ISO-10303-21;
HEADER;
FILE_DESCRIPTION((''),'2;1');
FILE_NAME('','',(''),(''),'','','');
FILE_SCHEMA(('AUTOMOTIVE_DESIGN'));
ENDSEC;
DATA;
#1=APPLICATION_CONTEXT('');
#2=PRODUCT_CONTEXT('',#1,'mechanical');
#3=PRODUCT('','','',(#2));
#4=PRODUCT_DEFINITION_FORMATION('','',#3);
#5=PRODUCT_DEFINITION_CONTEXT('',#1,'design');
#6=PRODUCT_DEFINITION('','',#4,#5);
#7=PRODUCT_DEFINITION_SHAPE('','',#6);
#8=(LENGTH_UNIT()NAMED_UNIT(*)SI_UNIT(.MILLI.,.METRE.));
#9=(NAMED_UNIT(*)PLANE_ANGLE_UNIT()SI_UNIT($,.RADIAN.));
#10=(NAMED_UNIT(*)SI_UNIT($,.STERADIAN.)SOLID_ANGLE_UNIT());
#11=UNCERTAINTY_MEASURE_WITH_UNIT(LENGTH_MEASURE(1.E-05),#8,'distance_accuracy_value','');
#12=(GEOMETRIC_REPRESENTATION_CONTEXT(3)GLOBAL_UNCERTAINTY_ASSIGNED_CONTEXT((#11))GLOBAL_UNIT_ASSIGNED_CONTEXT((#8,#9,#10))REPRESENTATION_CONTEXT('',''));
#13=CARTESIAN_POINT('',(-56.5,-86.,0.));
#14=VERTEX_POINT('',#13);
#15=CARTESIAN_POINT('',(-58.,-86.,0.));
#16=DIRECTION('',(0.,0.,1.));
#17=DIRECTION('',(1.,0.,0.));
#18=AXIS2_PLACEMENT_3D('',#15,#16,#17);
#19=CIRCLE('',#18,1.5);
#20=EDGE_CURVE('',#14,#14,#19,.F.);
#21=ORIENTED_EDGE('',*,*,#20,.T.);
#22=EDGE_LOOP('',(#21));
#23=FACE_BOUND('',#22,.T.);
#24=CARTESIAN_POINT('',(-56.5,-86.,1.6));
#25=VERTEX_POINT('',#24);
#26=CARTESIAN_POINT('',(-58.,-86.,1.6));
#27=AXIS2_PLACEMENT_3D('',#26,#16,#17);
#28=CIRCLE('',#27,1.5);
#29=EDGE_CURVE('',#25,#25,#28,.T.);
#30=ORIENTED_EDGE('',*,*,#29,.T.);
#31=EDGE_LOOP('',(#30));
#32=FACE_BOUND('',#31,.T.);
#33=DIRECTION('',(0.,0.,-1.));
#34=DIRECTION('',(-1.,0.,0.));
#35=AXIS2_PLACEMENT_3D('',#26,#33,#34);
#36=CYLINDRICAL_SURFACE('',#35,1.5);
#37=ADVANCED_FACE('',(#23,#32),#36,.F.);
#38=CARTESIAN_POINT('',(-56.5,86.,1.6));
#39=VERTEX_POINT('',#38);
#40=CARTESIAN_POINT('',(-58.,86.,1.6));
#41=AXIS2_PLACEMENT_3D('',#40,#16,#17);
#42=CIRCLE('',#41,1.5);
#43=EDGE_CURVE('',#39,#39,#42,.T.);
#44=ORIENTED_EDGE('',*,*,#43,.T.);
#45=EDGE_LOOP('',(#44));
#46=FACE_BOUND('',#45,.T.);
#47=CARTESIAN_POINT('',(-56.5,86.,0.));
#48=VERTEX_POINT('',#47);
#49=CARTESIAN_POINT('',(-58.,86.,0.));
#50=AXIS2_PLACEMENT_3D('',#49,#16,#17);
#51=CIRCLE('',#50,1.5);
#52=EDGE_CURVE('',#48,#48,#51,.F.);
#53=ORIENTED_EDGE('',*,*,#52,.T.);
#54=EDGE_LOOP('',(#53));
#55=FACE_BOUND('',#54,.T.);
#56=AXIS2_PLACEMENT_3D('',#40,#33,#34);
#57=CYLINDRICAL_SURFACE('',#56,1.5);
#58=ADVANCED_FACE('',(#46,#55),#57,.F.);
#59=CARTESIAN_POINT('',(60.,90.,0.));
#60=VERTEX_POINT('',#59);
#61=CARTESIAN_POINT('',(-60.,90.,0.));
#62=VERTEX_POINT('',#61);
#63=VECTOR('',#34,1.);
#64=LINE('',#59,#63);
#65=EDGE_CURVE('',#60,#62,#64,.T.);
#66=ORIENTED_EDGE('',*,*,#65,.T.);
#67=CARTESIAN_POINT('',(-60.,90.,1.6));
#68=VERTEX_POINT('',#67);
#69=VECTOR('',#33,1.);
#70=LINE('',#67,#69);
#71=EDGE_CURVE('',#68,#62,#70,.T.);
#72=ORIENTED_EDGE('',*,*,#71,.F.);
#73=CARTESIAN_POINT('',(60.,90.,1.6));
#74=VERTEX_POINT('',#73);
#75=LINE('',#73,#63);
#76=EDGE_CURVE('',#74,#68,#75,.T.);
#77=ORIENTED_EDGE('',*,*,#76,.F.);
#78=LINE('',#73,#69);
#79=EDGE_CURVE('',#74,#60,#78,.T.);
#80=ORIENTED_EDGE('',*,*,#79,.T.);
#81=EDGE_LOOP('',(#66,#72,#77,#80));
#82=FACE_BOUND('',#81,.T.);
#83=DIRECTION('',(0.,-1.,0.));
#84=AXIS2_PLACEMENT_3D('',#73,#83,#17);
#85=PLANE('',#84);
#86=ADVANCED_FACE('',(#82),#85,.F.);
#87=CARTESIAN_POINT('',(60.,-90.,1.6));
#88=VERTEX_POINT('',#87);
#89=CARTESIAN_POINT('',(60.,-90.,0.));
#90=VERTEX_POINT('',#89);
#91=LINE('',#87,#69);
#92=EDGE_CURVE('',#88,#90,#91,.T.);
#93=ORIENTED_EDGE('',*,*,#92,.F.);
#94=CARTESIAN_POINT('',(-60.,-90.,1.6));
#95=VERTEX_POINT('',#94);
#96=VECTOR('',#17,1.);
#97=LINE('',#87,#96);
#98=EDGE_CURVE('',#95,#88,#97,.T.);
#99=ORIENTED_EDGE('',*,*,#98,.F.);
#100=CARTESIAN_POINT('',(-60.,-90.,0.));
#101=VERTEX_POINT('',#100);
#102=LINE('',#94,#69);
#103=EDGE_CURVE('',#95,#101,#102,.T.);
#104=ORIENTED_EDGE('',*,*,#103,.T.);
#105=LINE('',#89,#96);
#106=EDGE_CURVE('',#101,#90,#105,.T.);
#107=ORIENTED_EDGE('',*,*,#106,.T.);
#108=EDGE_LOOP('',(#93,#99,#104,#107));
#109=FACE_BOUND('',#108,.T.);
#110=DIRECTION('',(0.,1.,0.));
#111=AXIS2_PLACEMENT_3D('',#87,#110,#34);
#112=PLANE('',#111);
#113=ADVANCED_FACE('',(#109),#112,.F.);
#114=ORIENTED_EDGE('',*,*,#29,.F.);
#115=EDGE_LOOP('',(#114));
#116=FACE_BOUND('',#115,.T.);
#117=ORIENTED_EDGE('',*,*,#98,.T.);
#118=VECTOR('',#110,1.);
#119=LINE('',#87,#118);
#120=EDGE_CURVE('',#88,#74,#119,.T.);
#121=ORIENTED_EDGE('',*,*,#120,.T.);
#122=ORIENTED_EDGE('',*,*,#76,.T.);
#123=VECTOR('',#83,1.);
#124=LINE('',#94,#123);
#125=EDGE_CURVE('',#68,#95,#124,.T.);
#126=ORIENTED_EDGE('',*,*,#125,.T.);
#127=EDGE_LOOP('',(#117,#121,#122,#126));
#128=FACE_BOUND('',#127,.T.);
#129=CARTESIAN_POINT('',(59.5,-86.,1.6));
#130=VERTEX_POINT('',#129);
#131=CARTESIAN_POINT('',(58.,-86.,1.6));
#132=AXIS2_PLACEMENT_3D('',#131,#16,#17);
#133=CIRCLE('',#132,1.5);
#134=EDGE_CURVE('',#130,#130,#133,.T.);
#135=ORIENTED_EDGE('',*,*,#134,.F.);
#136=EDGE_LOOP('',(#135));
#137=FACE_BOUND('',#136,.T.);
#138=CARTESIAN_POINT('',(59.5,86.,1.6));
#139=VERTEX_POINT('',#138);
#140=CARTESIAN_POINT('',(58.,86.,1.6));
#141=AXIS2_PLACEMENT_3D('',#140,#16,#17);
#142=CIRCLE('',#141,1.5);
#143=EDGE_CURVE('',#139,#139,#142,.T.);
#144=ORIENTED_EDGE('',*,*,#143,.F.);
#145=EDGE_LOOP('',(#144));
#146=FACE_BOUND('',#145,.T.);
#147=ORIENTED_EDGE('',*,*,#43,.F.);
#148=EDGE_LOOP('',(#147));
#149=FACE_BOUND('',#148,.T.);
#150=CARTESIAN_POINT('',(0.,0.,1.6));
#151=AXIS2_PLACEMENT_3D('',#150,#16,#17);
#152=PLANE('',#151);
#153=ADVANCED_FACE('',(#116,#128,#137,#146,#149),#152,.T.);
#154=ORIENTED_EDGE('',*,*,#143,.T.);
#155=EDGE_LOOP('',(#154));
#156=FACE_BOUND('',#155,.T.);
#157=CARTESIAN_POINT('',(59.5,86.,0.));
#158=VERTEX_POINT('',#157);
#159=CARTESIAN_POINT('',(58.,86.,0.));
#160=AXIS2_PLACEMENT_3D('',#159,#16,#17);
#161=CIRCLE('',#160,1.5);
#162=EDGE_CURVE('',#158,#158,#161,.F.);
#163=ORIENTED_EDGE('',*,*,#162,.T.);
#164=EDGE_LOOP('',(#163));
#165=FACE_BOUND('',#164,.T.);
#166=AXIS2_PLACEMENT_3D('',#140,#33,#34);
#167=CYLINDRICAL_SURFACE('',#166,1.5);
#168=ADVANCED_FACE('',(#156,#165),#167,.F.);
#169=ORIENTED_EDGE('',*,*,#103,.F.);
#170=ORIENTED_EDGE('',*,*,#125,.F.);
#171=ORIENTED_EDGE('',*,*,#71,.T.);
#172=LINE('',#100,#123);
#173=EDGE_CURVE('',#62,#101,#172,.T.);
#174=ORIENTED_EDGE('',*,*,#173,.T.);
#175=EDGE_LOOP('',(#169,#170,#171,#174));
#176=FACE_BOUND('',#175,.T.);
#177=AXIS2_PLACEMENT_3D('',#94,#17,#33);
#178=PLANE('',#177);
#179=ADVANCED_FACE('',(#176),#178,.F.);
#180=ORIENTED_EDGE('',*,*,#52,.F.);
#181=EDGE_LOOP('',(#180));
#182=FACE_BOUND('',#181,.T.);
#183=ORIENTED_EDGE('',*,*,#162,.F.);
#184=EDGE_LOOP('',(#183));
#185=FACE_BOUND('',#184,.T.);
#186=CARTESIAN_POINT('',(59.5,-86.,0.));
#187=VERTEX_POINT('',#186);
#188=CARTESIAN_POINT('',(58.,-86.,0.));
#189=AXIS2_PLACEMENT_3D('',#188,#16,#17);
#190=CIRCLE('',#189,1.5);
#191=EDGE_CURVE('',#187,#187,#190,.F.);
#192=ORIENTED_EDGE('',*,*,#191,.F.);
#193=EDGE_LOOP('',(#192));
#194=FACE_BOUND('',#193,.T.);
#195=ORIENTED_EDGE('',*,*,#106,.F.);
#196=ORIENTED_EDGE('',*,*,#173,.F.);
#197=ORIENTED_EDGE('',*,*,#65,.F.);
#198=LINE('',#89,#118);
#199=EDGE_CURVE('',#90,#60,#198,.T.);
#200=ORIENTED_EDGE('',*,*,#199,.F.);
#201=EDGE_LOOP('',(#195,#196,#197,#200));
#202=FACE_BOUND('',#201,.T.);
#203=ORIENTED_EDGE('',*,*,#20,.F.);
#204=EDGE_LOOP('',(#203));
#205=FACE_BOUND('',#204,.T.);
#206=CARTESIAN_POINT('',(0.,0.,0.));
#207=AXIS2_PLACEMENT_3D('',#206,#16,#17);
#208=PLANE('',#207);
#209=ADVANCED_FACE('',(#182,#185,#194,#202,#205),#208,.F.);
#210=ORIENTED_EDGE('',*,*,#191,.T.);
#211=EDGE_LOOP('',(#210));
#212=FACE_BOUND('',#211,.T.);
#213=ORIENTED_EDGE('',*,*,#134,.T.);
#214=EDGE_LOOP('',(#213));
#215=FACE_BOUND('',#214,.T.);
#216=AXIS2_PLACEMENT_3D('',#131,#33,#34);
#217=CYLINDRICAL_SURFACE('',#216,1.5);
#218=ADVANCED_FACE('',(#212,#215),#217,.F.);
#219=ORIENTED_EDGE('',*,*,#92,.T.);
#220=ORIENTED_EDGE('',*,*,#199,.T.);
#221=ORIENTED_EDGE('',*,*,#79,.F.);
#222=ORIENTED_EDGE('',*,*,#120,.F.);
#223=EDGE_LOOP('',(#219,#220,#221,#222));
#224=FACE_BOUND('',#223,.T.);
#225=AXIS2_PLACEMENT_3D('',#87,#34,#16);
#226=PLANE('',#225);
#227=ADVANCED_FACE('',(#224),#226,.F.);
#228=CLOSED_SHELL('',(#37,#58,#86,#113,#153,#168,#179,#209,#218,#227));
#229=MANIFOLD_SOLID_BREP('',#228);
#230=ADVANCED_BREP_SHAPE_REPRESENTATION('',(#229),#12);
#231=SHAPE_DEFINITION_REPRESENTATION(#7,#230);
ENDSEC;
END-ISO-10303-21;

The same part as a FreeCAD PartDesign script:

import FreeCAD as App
import Part
import Sketcher
from FreeCAD import Vector
Q = App.Units.Quantity

doc = App.newDocument("Part")
params = doc.addObject("Spreadsheet::Sheet", "Params")
for row, (alias, value) in enumerate([
    ("sketch1_width", "120 mm"),
    ("sketch1_height", "180 mm"),
    ("pad1_length", "1.6 mm"),
    ("sketch2_diameter", "3 mm"),
], start=1):
    params.set(f"A{row}", alias)
    params.set(f"B{row}", "=" + value)
    params.setAlias(f"B{row}", alias)

body = doc.addObject("PartDesign::Body", "Body")

# Sketch on XY plane
sketch1 = body.newObject("Sketcher::SketchObject", "Sketch")
sketch1.AttachmentSupport = (doc.getObject("XY_Plane"), [""])
sketch1.MapMode = "FlatFace"
sketch1.addGeometry([
    Part.LineSegment(Vector(-60, 90, 0), Vector(-60, -90, 0)),
    Part.LineSegment(Vector(-60, -90, 0), Vector(60, -90, 0)),
    Part.LineSegment(Vector(60, -90, 0), Vector(60, 90, 0)),
    Part.LineSegment(Vector(60, 90, 0), Vector(-60, 90, 0)),
], False)
sketch1.addConstraint([
    Sketcher.Constraint("Coincident", 0, 2, 1, 1),
    Sketcher.Constraint("Coincident", 1, 2, 2, 1),
    Sketcher.Constraint("Coincident", 2, 2, 3, 1),
    Sketcher.Constraint("Coincident", 3, 2, 0, 1),
    Sketcher.Constraint("Vertical", 0),
    Sketcher.Constraint("Horizontal", 1),
    Sketcher.Constraint("Vertical", 2),
    Sketcher.Constraint("Horizontal", 3),
    Sketcher.Constraint("Symmetric", 0, 2, 2, 2, -1, 1),
    Sketcher.Constraint("DistanceX", 1, 1, 1, 2, Q("120 mm")),
    Sketcher.Constraint("DistanceY", 0, 2, 0, 1, Q("180 mm")),
])
sketch1.setExpression("Constraints[9]", "Params.sketch1_width")
sketch1.setExpression("Constraints[10]", "Params.sketch1_height")
pad1 = body.newObject("PartDesign::Pad", "Pad")
pad1.Profile = sketch1
pad1.setExpression("Length", "Params.pad1_length")

# Sketch on XY plane
sketch2 = body.newObject("Sketcher::SketchObject", "Sketch001")
sketch2.AttachmentSupport = (doc.getObject("XY_Plane"), [""])
sketch2.MapMode = "FlatFace"
sketch2.addGeometry([
    Part.Circle(Vector(-58, 86, 0), Vector(0, 0, 1), 1.5),
    Part.Circle(Vector(58, 86, 0), Vector(0, 0, 1), 1.5),
    Part.Circle(Vector(58, -86, 0), Vector(0, 0, 1), 1.5),
    Part.Circle(Vector(-58, -86, 0), Vector(0, 0, 1), 1.5),
], False)
sketch2.addConstraint([
    Sketcher.Constraint("Equal", 0, 1),
    Sketcher.Constraint("Equal", 1, 2),
    Sketcher.Constraint("Equal", 2, 3),
    Sketcher.Constraint("Symmetric", 0, 3, 2, 3, -1, 1),
    Sketcher.Constraint("Symmetric", 1, 3, 3, 3, -1, 1),
    Sketcher.Constraint("Symmetric", 0, 3, 1, 3, -2),
    Sketcher.Constraint("Diameter", 0, Q("3 mm")),
    Sketcher.Constraint("DistanceX", 0, 3, -1, 1, Q("58 mm")),
    Sketcher.Constraint("DistanceY", -1, 1, 0, 3, Q("86 mm")),
])
sketch2.setExpression("Constraints[6]", "Params.sketch2_diameter")
pocket1 = body.newObject("PartDesign::Pocket", "Pocket")
pocket1.Profile = sketch2
pocket1.Type = "ThroughAll"
pocket1.Midplane = True

doc.recompute()
